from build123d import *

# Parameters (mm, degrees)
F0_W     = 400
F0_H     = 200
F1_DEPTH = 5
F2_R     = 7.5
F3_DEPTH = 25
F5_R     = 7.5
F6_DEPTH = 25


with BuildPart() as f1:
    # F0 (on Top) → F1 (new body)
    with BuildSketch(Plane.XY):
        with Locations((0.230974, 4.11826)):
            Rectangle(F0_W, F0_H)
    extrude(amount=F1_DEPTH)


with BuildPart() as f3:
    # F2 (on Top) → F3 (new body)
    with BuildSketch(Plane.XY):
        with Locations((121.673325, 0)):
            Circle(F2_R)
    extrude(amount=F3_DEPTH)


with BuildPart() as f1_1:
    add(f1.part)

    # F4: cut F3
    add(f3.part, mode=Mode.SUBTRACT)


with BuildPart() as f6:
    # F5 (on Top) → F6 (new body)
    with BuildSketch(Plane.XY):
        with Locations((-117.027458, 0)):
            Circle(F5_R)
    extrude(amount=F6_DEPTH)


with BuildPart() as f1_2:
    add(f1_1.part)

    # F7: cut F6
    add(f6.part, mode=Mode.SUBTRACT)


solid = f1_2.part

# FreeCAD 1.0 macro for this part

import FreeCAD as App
import Part
import Sketcher

V = App.Vector
Q = App.Units.Quantity


def add_polygon(sketch, points):
    """Adds a closed chain of lines whose ends are joined by coincident constraints."""
    first, n = sketch.GeometryCount, len(points)
    for a, b in zip(points, points[1:] + points[:1]):
        sketch.addGeometry(Part.LineSegment(App.Vector(*a, 0), App.Vector(*b, 0)), False)
    for i in range(n):
        sketch.addConstraint(Sketcher.Constraint("Coincident", first + i, 2, first + (i + 1) % n, 1))

doc = App.newDocument("Part")
body = doc.addObject("PartDesign::Body", "Body")

# Sketch on XY plane
sketch1 = body.newObject("Sketcher::SketchObject", "Sketch")
sketch1.AttachmentSupport = (doc.getObject("XY_Plane"), [""])
sketch1.MapMode = "FlatFace"
add_polygon(sketch1, [(-200, 104), (-200, -96), (200, -96), (200, 104)])  # lines 0-3
sketch1.addConstraint([
    Sketcher.Constraint("Vertical", 0),
    Sketcher.Constraint("Horizontal", 1),
    Sketcher.Constraint("Vertical", 2),
    Sketcher.Constraint("Horizontal", 3),
    Sketcher.Constraint("DistanceX", 1, 1, 1, 2, Q("400 mm")),
    Sketcher.Constraint("DistanceY", 0, 2, 0, 1, Q("200 mm")),
    Sketcher.Constraint("DistanceY", 0, 2, -1, 1, Q("95.88174 mm")),
    Sketcher.Constraint("DistanceX", 0, 2, -1, 1, Q("199.769026 mm")),
])
pad1 = body.newObject("PartDesign::Pad", "Pad")
pad1.Profile = sketch1
pad1.Length = 5
body2 = doc.addObject("PartDesign::Body", "Body001")

# Sketch on XY plane
sketch2 = body2.newObject("Sketcher::SketchObject", "Sketch001")
sketch2.AttachmentSupport = (doc.getObject("XY_Plane001"), [""])
sketch2.MapMode = "FlatFace"
sketch2.addGeometry(Part.Circle(V(122, 0, 0), V(0, 0, 1), 8), False)
sketch2.addConstraint([
    Sketcher.Constraint("PointOnObject", 0, 3, -1),
    Sketcher.Constraint("Diameter", 0, Q("15 mm")),
    Sketcher.Constraint("DistanceX", -1, 1, 0, 3, Q("121.673325 mm")),
])
pad2 = body2.newObject("PartDesign::Pad", "Pad001")
pad2.Profile = sketch2
pad2.Length = 25
doc.recompute()

boolean = body.newObject("PartDesign::Boolean", "Boolean")
boolean.Type = "Cut"
boolean.addObjects([body2])
body3 = doc.addObject("PartDesign::Body", "Body002")

# Sketch on XY plane
sketch3 = body3.newObject("Sketcher::SketchObject", "Sketch002")
sketch3.AttachmentSupport = (doc.getObject("XY_Plane002"), [""])
sketch3.MapMode = "FlatFace"
sketch3.addGeometry(Part.Circle(V(-117, 0, 0), V(0, 0, 1), 8), False)
sketch3.addConstraint([
    Sketcher.Constraint("PointOnObject", 0, 3, -1),
    Sketcher.Constraint("Diameter", 0, Q("15 mm")),
    Sketcher.Constraint("DistanceX", 0, 3, -1, 1, Q("117.027458 mm")),
])
pad3 = body3.newObject("PartDesign::Pad", "Pad002")
pad3.Profile = sketch3
pad3.Length = 25
doc.recompute()

boolean2 = body.newObject("PartDesign::Boolean", "Boolean001")
boolean2.Type = "Cut"
boolean2.addObjects([body3])

doc.recompute()
